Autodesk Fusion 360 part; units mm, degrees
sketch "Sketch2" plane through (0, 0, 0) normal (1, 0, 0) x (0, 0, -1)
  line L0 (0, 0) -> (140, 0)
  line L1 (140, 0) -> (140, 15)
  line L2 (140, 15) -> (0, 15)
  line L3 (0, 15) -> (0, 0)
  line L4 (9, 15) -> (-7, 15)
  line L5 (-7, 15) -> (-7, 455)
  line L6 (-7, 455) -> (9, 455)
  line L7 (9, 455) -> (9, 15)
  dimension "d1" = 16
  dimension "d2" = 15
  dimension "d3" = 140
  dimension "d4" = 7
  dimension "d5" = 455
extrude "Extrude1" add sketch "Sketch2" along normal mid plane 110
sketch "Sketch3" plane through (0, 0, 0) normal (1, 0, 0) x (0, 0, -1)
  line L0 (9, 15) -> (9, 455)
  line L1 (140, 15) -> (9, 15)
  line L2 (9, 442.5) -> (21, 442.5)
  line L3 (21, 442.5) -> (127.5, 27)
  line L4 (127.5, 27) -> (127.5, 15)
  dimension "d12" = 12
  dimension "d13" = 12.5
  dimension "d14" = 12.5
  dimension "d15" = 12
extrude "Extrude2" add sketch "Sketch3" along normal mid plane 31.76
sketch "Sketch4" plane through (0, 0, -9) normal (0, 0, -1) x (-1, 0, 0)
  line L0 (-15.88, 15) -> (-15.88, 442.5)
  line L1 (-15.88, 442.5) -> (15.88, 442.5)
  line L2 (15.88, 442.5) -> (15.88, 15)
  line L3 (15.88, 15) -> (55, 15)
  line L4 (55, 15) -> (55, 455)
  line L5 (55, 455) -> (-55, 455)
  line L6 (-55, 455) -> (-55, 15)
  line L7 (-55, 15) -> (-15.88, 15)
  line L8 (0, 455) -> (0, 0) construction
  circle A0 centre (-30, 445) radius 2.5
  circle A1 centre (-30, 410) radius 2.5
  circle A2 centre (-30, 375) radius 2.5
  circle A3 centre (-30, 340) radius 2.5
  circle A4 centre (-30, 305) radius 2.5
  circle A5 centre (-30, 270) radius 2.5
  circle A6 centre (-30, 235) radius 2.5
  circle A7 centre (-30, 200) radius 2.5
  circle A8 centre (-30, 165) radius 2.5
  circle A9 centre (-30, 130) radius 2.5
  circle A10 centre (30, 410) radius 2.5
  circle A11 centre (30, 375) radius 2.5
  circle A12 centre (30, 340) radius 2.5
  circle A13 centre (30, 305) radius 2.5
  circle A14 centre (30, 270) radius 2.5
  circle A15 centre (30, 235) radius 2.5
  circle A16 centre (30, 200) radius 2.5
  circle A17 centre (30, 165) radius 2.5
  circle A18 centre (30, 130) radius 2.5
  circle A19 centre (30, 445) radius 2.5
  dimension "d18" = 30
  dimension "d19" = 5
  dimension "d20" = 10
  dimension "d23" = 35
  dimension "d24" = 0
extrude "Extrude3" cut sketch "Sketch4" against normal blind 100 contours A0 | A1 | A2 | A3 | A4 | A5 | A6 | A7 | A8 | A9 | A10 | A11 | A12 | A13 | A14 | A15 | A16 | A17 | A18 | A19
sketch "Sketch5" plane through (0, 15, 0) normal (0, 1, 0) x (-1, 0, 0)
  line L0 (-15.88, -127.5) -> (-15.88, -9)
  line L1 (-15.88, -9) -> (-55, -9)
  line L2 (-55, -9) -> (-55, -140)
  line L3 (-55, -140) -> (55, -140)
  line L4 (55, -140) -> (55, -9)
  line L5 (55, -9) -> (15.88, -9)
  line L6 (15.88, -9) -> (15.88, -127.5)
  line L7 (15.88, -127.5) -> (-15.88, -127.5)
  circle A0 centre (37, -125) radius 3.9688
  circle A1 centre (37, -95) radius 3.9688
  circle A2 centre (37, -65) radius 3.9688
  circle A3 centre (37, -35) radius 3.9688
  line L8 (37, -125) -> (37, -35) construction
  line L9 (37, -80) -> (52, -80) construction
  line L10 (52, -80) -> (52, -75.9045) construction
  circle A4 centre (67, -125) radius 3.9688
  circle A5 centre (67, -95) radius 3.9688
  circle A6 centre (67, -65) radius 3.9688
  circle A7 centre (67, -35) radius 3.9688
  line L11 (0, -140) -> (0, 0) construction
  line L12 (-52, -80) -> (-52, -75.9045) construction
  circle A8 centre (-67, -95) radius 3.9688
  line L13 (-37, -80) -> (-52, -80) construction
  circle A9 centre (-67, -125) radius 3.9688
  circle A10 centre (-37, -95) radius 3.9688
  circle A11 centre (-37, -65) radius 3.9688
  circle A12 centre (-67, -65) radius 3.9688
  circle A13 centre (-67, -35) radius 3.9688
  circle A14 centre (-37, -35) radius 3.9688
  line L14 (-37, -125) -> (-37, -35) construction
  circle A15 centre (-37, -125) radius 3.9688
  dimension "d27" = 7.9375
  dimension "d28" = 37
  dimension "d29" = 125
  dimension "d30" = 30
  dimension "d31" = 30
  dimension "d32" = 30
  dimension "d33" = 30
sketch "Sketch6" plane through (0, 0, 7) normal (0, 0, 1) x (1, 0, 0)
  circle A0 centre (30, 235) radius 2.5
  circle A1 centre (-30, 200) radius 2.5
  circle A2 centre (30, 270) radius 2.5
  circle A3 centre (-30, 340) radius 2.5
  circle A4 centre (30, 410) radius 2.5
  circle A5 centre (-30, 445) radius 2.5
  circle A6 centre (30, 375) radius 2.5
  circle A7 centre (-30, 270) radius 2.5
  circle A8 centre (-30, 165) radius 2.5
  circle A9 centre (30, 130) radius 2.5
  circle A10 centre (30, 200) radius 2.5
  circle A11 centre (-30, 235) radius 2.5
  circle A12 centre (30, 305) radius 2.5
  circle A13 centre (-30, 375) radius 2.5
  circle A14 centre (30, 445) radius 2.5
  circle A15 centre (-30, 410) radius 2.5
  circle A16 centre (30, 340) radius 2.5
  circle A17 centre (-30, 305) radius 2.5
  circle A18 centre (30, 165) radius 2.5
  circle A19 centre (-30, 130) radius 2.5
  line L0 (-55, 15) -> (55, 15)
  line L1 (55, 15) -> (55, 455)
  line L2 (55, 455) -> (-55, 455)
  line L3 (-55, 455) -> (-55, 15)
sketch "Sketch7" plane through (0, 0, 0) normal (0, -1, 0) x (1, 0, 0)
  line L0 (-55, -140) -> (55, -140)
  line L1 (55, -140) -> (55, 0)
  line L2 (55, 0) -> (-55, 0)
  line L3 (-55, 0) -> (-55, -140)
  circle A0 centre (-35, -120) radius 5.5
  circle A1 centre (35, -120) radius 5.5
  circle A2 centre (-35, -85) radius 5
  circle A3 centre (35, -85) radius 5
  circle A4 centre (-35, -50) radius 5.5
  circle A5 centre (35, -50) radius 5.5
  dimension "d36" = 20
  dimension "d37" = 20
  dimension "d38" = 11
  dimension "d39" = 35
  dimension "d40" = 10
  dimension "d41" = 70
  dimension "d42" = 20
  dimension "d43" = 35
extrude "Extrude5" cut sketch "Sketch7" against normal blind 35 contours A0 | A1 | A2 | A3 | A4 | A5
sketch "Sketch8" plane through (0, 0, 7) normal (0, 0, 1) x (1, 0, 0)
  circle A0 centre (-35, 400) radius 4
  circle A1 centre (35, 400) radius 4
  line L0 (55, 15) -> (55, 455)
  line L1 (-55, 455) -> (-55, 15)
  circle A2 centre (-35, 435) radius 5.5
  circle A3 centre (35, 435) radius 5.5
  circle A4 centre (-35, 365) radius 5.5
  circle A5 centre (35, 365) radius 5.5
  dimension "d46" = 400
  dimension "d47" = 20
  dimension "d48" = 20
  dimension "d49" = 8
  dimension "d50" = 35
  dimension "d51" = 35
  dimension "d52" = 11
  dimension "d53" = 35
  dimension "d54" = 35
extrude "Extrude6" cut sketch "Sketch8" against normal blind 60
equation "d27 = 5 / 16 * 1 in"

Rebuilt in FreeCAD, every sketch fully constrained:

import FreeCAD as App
import Part
import Sketcher

V = App.Vector
Q = App.Units.Quantity

doc = App.newDocument("Part")
body = doc.addObject("PartDesign::Body", "Body")

sketch1 = doc.addObject("Sketcher::SketchObject", "Sketch")
body.addObject(sketch1)
sketch1.AttachmentSupport = (doc.YZ_Plane, [""])
sketch1.MapMode = "FlatFace"
sketch1.addGeometry(Part.LineSegment(V(15, 0, 0), V(0, 0, 0)), False)
sketch1.addGeometry(Part.LineSegment(V(0, 0, 0), V(0, -140, 0)), False)
sketch1.addGeometry(Part.LineSegment(V(0, -140, 0), V(15, -140, 0)), False)
sketch1.addGeometry(Part.LineSegment(V(15, -140, 0), V(15, -9, 0)), False)
sketch1.addGeometry(Part.LineSegment(V(15, -9, 0), V(455, -9, 0)), False)
sketch1.addGeometry(Part.LineSegment(V(455, -9, 0), V(455, 7, 0)), False)
sketch1.addGeometry(Part.LineSegment(V(455, 7, 0), V(15, 7, 0)), False)
sketch1.addGeometry(Part.LineSegment(V(15, 7, 0), V(15, 0, 0)), False)
sketch1.addConstraint(Sketcher.Constraint("Coincident", 0, 2, 1, 1))
sketch1.addConstraint(Sketcher.Constraint("Coincident", 1, 2, 2, 1))
sketch1.addConstraint(Sketcher.Constraint("Coincident", 2, 2, 3, 1))
sketch1.addConstraint(Sketcher.Constraint("Coincident", 3, 2, 4, 1))
sketch1.addConstraint(Sketcher.Constraint("Coincident", 4, 2, 5, 1))
sketch1.addConstraint(Sketcher.Constraint("Coincident", 5, 2, 6, 1))
sketch1.addConstraint(Sketcher.Constraint("Coincident", 6, 2, 7, 1))
sketch1.addConstraint(Sketcher.Constraint("Coincident", 7, 2, 0, 1))
sketch1.addConstraint(Sketcher.Constraint("Horizontal", 0))
sketch1.addConstraint(Sketcher.Constraint("Vertical", 1))
sketch1.addConstraint(Sketcher.Constraint("Horizontal", 2))
sketch1.addConstraint(Sketcher.Constraint("Vertical", 3))
sketch1.addConstraint(Sketcher.Constraint("Horizontal", 4))
sketch1.addConstraint(Sketcher.Constraint("Vertical", 5))
sketch1.addConstraint(Sketcher.Constraint("Horizontal", 6))
sketch1.addConstraint(Sketcher.Constraint("Vertical", 7))
sketch1.addConstraint(Sketcher.Constraint("Coincident", 0, 2, -1, 1))
sketch1.addConstraint(Sketcher.Constraint("Vertical", 3, 2, 6, 2))
sketch1.addConstraint(Sketcher.Constraint("DistanceX", 0, 2, 0, 1, Q("15 mm")))
sketch1.addConstraint(Sketcher.Constraint("DistanceY", 1, 2, 1, 1, Q("140 mm")))
sketch1.addConstraint(Sketcher.Constraint("DistanceY", 5, 1, 5, 2, Q("16 mm")))
sketch1.addConstraint(Sketcher.Constraint("DistanceY", 7, 2, 7, 1, Q("7 mm")))
sketch1.addConstraint(Sketcher.Constraint("DistanceX", -1, 1, 4, 2, Q("455 mm")))
pad1 = doc.addObject("PartDesign::Pad", "Pad")
body.addObject(pad1)
pad1.Profile = sketch1
pad1.Length = 110
pad1.Midplane = True

sketch2 = doc.addObject("Sketcher::SketchObject", "Sketch001")
body.addObject(sketch2)
sketch2.AttachmentSupport = (doc.YZ_Plane, [""])
sketch2.MapMode = "FlatFace"
sketch2.addGeometry(Part.LineSegment(V(442.5, -9, 0), V(15, -9, 0)), False)
sketch2.addGeometry(Part.LineSegment(V(15, -9, 0), V(15, -127.5, 0)), False)
sketch2.addGeometry(Part.LineSegment(V(15, -127.5, 0), V(27, -127.5, 0)), False)
sketch2.addGeometry(Part.LineSegment(V(27, -127.5, 0), V(442.5, -21, 0)), False)
sketch2.addGeometry(Part.LineSegment(V(442.5, -21, 0), V(442.5, -9, 0)), False)
sketch2.addConstraint(Sketcher.Constraint("Coincident", 0, 2, 1, 1))
sketch2.addConstraint(Sketcher.Constraint("Coincident", 1, 2, 2, 1))
sketch2.addConstraint(Sketcher.Constraint("Coincident", 2, 2, 3, 1))
sketch2.addConstraint(Sketcher.Constraint("Coincident", 3, 2, 4, 1))
sketch2.addConstraint(Sketcher.Constraint("Coincident", 4, 2, 0, 1))
sketch2.addConstraint(Sketcher.Constraint("Horizontal", 0))
sketch2.addConstraint(Sketcher.Constraint("Vertical", 1))
sketch2.addConstraint(Sketcher.Constraint("Horizontal", 2))
sketch2.addConstraint(Sketcher.Constraint("Vertical", 4))
sketch2.addConstraint(Sketcher.Constraint("Equal", 2, 4))
sketch2.addConstraint(Sketcher.Constraint("DistanceX", 2, 1, 2, 2, Q("12 mm")))
sketch2.addConstraint(Sketcher.Constraint("DistanceX", 0, 2, 0, 1, Q("427.5 mm")))
sketch2.addConstraint(Sketcher.Constraint("DistanceY", 1, 2, 1, 1, Q("118.5 mm")))
sketch2.addConstraint(Sketcher.Constraint("DistanceX", -1, 1, 0, 2, Q("15 mm")))
sketch2.addConstraint(Sketcher.Constraint("DistanceY", 0, 2, -1, 1, Q("9 mm")))
pad2 = doc.addObject("PartDesign::Pad", "Pad001")
body.addObject(pad2)
pad2.Profile = sketch2
pad2.Length = 31.76
pad2.Midplane = True

sketch3 = doc.addObject("Sketcher::SketchObject", "Sketch002")
body.addObject(sketch3)
sketch3.AttachmentSupport = (doc.XY_Plane, [""])
sketch3.MapMode = "FlatFace"
sketch3.AttachmentOffset = App.Placement(V(0, 0, -9), App.Rotation())
sketch3.addGeometry(Part.Circle(V(30, 445, 0), V(0, 0, 1), 2.5), False)
sketch3.addGeometry(Part.Circle(V(30, 410, 0), V(0, 0, 1), 2.5), False)
sketch3.addGeometry(Part.Circle(V(30, 375, 0), V(0, 0, 1), 2.5), False)
sketch3.addGeometry(Part.Circle(V(30, 340, 0), V(0, 0, 1), 2.5), False)
sketch3.addGeometry(Part.Circle(V(30, 305, 0), V(0, 0, 1), 2.5), False)
sketch3.addGeometry(Part.Circle(V(30, 270, 0), V(0, 0, 1), 2.5), False)
sketch3.addGeometry(Part.Circle(V(30, 235, 0), V(0, 0, 1), 2.5), False)
sketch3.addGeometry(Part.Circle(V(30, 200, 0), V(0, 0, 1), 2.5), False)
sketch3.addGeometry(Part.Circle(V(30, 165, 0), V(0, 0, 1), 2.5), False)
sketch3.addGeometry(Part.Circle(V(30, 130, 0), V(0, 0, 1), 2.5), False)
sketch3.addGeometry(Part.Circle(V(-30, 410, 0), V(0, 0, 1), 2.5), False)
sketch3.addGeometry(Part.Circle(V(-30, 375, 0), V(0, 0, 1), 2.5), False)
sketch3.addGeometry(Part.Circle(V(-30, 340, 0), V(0, 0, 1), 2.5), False)
sketch3.addGeometry(Part.Circle(V(-30, 305, 0), V(0, 0, 1), 2.5), False)
sketch3.addGeometry(Part.Circle(V(-30, 270, 0), V(0, 0, 1), 2.5), False)
sketch3.addGeometry(Part.Circle(V(-30, 235, 0), V(0, 0, 1), 2.5), False)
sketch3.addGeometry(Part.Circle(V(-30, 200, 0), V(0, 0, 1), 2.5), False)
sketch3.addGeometry(Part.Circle(V(-30, 165, 0), V(0, 0, 1), 2.5), False)
sketch3.addGeometry(Part.Circle(V(-30, 130, 0), V(0, 0, 1), 2.5), False)
sketch3.addGeometry(Part.Circle(V(-30, 445, 0), V(0, 0, 1), 2.5), False)
sketch3.addConstraint(Sketcher.Constraint("Equal", 0, 1))
sketch3.addConstraint(Sketcher.Constraint("Equal", 1, 2))
sketch3.addConstraint(Sketcher.Constraint("Equal", 2, 3))
sketch3.addConstraint(Sketcher.Constraint("Equal", 3, 4))
sketch3.addConstraint(Sketcher.Constraint("Equal", 4, 5))
sketch3.addConstraint(Sketcher.Constraint("Equal", 5, 6))
sketch3.addConstraint(Sketcher.Constraint("Equal", 6, 7))
sketch3.addConstraint(Sketcher.Constraint("Equal", 7, 8))
sketch3.addConstraint(Sketcher.Constraint("Equal", 8, 9))
sketch3.addConstraint(Sketcher.Constraint("Equal", 9, 10))
sketch3.addConstraint(Sketcher.Constraint("Equal", 10, 11))
sketch3.addConstraint(Sketcher.Constraint("Equal", 11, 12))
sketch3.addConstraint(Sketcher.Constraint("Equal", 12, 13))
sketch3.addConstraint(Sketcher.Constraint("Equal", 13, 14))
sketch3.addConstraint(Sketcher.Constraint("Equal", 14, 15))
sketch3.addConstraint(Sketcher.Constraint("Equal", 15, 16))
sketch3.addConstraint(Sketcher.Constraint("Equal", 16, 17))
sketch3.addConstraint(Sketcher.Constraint("Equal", 17, 18))
sketch3.addConstraint(Sketcher.Constraint("Equal", 18, 19))
sketch3.addConstraint(Sketcher.Constraint("Symmetric", 1, 3, 10, 3, -2))
sketch3.addConstraint(Sketcher.Constraint("Symmetric", 2, 3, 11, 3, -2))
sketch3.addConstraint(Sketcher.Constraint("Symmetric", 3, 3, 12, 3, -2))
sketch3.addConstraint(Sketcher.Constraint("Symmetric", 4, 3, 13, 3, -2))
sketch3.addConstraint(Sketcher.Constraint("Symmetric", 5, 3, 14, 3, -2))
sketch3.addConstraint(Sketcher.Constraint("Symmetric", 6, 3, 15, 3, -2))
sketch3.addConstraint(Sketcher.Constraint("Symmetric", 7, 3, 16, 3, -2))
sketch3.addConstraint(Sketcher.Constraint("Symmetric", 8, 3, 17, 3, -2))
sketch3.addConstraint(Sketcher.Constraint("Symmetric", 9, 3, 18, 3, -2))
sketch3.addConstraint(Sketcher.Constraint("Symmetric", 0, 3, 19, 3, -2))
sketch3.addConstraint(Sketcher.Constraint("Vertical", 0, 3, 1, 3))
sketch3.addConstraint(Sketcher.Constraint("Vertical", 1, 3, 2, 3))
sketch3.addConstraint(Sketcher.Constraint("Vertical", 2, 3, 3, 3))
sketch3.addConstraint(Sketcher.Constraint("Vertical", 3, 3, 4, 3))
sketch3.addConstraint(Sketcher.Constraint("Vertical", 4, 3, 5, 3))
sketch3.addConstraint(Sketcher.Constraint("Vertical", 5, 3, 6, 3))
sketch3.addConstraint(Sketcher.Constraint("Vertical", 6, 3, 7, 3))
sketch3.addConstraint(Sketcher.Constraint("Vertical", 7, 3, 8, 3))
sketch3.addConstraint(Sketcher.Constraint("Vertical", 8, 3, 9, 3))
sketch3.addConstraint(Sketcher.Constraint("Diameter", 0, Q("5 mm")))
sketch3.addConstraint(Sketcher.Constraint("DistanceX", -1, 1, 0, 3, Q("30 mm")))
sketch3.addConstraint(Sketcher.Constraint("DistanceY", 1, 3, 0, 3, Q("35 mm")))
sketch3.addConstraint(Sketcher.Constraint("DistanceY", 2, 3, 1, 3, Q("35 mm")))
sketch3.addConstraint(Sketcher.Constraint("DistanceY", 3, 3, 2, 3, Q("35 mm")))
sketch3.addConstraint(Sketcher.Constraint("DistanceY", 4, 3, 3, 3, Q("35 mm")))
sketch3.addConstraint(Sketcher.Constraint("DistanceY", 5, 3, 4, 3, Q("35 mm")))
sketch3.addConstraint(Sketcher.Constraint("DistanceY", 6, 3, 5, 3, Q("35 mm")))
sketch3.addConstraint(Sketcher.Constraint("DistanceY", 7, 3, 6, 3, Q("35 mm")))
sketch3.addConstraint(Sketcher.Constraint("DistanceY", 8, 3, 7, 3, Q("35 mm")))
sketch3.addConstraint(Sketcher.Constraint("DistanceY", 9, 3, 8, 3, Q("35 mm")))
sketch3.addConstraint(Sketcher.Constraint("DistanceY", -1, 1, 0, 3, Q("445 mm")))
pocket1 = doc.addObject("PartDesign::Pocket", "Pocket")
body.addObject(pocket1)
pocket1.Profile = sketch3
pocket1.Length = 100
pocket1.Reversed = True

sketch4 = doc.addObject("Sketcher::SketchObject", "Sketch003")
body.addObject(sketch4)
sketch4.AttachmentSupport = (doc.XZ_Plane, [""])
sketch4.MapMode = "FlatFace"
sketch4.addGeometry(Part.Circle(V(-35, -120, 0), V(0, 0, 1), 5.5), False)
sketch4.addGeometry(Part.Circle(V(35, -120, 0), V(0, 0, 1), 5.5), False)
sketch4.addGeometry(Part.Circle(V(-35, -85, 0), V(0, 0, 1), 5), False)
sketch4.addGeometry(Part.Circle(V(35, -85, 0), V(0, 0, 1), 5), False)
sketch4.addGeometry(Part.Circle(V(-35, -50, 0), V(0, 0, 1), 5.5), False)
sketch4.addGeometry(Part.Circle(V(35, -50, 0), V(0, 0, 1), 5.5), False)
sketch4.addConstraint(Sketcher.Constraint("Equal", 0, 1))
sketch4.addConstraint(Sketcher.Constraint("Equal", 2, 3))
sketch4.addConstraint(Sketcher.Constraint("Equal", 1, 4))
sketch4.addConstraint(Sketcher.Constraint("Equal", 4, 5))
sketch4.addConstraint(Sketcher.Constraint("Symmetric", 0, 3, 1, 3, -2))
sketch4.addConstraint(Sketcher.Constraint("Symmetric", 2, 3, 3, 3, -2))
sketch4.addConstraint(Sketcher.Constraint("Symmetric", 4, 3, 5, 3, -2))
sketch4.addConstraint(Sketcher.Constraint("Vertical", 0, 3, 2, 3))
sketch4.addConstraint(Sketcher.Constraint("Vertical", 2, 3, 4, 3))
sketch4.addConstraint(Sketcher.Constraint("Diameter", 0, Q("11 mm")))
sketch4.addConstraint(Sketcher.Constraint("Diameter", 2, Q("10 mm")))
sketch4.addConstraint(Sketcher.Constraint("DistanceX", 0, 3, -1, 1, Q("35 mm")))
sketch4.addConstraint(Sketcher.Constraint("DistanceY", 0, 3, 2, 3, Q("35 mm")))
sketch4.addConstraint(Sketcher.Constraint("DistanceY", 2, 3, 4, 3, Q("35 mm")))
sketch4.addConstraint(Sketcher.Constraint("DistanceY", 0, 3, -1, 1, Q("120 mm")))
pocket2 = doc.addObject("PartDesign::Pocket", "Pocket001")
body.addObject(pocket2)
pocket2.Profile = sketch4
pocket2.Length = 35

sketch5 = doc.addObject("Sketcher::SketchObject", "Sketch004")
body.addObject(sketch5)
sketch5.AttachmentSupport = (doc.XY_Plane, [""])
sketch5.MapMode = "FlatFace"
sketch5.AttachmentOffset = App.Placement(V(0, 0, 7), App.Rotation())
sketch5.addGeometry(Part.Circle(V(-35, 400, 0), V(0, 0, 1), 4), False)
sketch5.addGeometry(Part.Circle(V(35, 400, 0), V(0, 0, 1), 4), False)
sketch5.addGeometry(Part.Circle(V(-35, 435, 0), V(0, 0, 1), 5.5), False)
sketch5.addGeometry(Part.Circle(V(35, 435, 0), V(0, 0, 1), 5.5), False)
sketch5.addGeometry(Part.Circle(V(-35, 365, 0), V(0, 0, 1), 5.5), False)
sketch5.addGeometry(Part.Circle(V(35, 365, 0), V(0, 0, 1), 5.5), False)
sketch5.addConstraint(Sketcher.Constraint("Equal", 0, 1))
sketch5.addConstraint(Sketcher.Constraint("Equal", 2, 3))
sketch5.addConstraint(Sketcher.Constraint("Equal", 3, 4))
sketch5.addConstraint(Sketcher.Constraint("Equal", 4, 5))
sketch5.addConstraint(Sketcher.Constraint("Symmetric", 0, 3, 1, 3, -2))
sketch5.addConstraint(Sketcher.Constraint("Symmetric", 2, 3, 3, 3, -2))
sketch5.addConstraint(Sketcher.Constraint("Symmetric", 4, 3, 5, 3, -2))
sketch5.addConstraint(Sketcher.Constraint("Vertical", 0, 3, 2, 3))
sketch5.addConstraint(Sketcher.Constraint("Vertical", 2, 3, 4, 3))
sketch5.addConstraint(Sketcher.Constraint("Diameter", 0, Q("8 mm")))
sketch5.addConstraint(Sketcher.Constraint("Diameter", 2, Q("11 mm")))
sketch5.addConstraint(Sketcher.Constraint("DistanceX", 0, 3, -1, 1, Q("35 mm")))
sketch5.addConstraint(Sketcher.Constraint("DistanceY", -1, 1, 0, 3, Q("400 mm")))
sketch5.addConstraint(Sketcher.Constraint("DistanceY", 0, 3, 2, 3, Q("35 mm")))
sketch5.addConstraint(Sketcher.Constraint("DistanceY", 4, 3, 0, 3, Q("35 mm")))
pocket3 = doc.addObject("PartDesign::Pocket", "Pocket002")
body.addObject(pocket3)
pocket3.Profile = sketch5
pocket3.Length = 60

doc.recompute()
